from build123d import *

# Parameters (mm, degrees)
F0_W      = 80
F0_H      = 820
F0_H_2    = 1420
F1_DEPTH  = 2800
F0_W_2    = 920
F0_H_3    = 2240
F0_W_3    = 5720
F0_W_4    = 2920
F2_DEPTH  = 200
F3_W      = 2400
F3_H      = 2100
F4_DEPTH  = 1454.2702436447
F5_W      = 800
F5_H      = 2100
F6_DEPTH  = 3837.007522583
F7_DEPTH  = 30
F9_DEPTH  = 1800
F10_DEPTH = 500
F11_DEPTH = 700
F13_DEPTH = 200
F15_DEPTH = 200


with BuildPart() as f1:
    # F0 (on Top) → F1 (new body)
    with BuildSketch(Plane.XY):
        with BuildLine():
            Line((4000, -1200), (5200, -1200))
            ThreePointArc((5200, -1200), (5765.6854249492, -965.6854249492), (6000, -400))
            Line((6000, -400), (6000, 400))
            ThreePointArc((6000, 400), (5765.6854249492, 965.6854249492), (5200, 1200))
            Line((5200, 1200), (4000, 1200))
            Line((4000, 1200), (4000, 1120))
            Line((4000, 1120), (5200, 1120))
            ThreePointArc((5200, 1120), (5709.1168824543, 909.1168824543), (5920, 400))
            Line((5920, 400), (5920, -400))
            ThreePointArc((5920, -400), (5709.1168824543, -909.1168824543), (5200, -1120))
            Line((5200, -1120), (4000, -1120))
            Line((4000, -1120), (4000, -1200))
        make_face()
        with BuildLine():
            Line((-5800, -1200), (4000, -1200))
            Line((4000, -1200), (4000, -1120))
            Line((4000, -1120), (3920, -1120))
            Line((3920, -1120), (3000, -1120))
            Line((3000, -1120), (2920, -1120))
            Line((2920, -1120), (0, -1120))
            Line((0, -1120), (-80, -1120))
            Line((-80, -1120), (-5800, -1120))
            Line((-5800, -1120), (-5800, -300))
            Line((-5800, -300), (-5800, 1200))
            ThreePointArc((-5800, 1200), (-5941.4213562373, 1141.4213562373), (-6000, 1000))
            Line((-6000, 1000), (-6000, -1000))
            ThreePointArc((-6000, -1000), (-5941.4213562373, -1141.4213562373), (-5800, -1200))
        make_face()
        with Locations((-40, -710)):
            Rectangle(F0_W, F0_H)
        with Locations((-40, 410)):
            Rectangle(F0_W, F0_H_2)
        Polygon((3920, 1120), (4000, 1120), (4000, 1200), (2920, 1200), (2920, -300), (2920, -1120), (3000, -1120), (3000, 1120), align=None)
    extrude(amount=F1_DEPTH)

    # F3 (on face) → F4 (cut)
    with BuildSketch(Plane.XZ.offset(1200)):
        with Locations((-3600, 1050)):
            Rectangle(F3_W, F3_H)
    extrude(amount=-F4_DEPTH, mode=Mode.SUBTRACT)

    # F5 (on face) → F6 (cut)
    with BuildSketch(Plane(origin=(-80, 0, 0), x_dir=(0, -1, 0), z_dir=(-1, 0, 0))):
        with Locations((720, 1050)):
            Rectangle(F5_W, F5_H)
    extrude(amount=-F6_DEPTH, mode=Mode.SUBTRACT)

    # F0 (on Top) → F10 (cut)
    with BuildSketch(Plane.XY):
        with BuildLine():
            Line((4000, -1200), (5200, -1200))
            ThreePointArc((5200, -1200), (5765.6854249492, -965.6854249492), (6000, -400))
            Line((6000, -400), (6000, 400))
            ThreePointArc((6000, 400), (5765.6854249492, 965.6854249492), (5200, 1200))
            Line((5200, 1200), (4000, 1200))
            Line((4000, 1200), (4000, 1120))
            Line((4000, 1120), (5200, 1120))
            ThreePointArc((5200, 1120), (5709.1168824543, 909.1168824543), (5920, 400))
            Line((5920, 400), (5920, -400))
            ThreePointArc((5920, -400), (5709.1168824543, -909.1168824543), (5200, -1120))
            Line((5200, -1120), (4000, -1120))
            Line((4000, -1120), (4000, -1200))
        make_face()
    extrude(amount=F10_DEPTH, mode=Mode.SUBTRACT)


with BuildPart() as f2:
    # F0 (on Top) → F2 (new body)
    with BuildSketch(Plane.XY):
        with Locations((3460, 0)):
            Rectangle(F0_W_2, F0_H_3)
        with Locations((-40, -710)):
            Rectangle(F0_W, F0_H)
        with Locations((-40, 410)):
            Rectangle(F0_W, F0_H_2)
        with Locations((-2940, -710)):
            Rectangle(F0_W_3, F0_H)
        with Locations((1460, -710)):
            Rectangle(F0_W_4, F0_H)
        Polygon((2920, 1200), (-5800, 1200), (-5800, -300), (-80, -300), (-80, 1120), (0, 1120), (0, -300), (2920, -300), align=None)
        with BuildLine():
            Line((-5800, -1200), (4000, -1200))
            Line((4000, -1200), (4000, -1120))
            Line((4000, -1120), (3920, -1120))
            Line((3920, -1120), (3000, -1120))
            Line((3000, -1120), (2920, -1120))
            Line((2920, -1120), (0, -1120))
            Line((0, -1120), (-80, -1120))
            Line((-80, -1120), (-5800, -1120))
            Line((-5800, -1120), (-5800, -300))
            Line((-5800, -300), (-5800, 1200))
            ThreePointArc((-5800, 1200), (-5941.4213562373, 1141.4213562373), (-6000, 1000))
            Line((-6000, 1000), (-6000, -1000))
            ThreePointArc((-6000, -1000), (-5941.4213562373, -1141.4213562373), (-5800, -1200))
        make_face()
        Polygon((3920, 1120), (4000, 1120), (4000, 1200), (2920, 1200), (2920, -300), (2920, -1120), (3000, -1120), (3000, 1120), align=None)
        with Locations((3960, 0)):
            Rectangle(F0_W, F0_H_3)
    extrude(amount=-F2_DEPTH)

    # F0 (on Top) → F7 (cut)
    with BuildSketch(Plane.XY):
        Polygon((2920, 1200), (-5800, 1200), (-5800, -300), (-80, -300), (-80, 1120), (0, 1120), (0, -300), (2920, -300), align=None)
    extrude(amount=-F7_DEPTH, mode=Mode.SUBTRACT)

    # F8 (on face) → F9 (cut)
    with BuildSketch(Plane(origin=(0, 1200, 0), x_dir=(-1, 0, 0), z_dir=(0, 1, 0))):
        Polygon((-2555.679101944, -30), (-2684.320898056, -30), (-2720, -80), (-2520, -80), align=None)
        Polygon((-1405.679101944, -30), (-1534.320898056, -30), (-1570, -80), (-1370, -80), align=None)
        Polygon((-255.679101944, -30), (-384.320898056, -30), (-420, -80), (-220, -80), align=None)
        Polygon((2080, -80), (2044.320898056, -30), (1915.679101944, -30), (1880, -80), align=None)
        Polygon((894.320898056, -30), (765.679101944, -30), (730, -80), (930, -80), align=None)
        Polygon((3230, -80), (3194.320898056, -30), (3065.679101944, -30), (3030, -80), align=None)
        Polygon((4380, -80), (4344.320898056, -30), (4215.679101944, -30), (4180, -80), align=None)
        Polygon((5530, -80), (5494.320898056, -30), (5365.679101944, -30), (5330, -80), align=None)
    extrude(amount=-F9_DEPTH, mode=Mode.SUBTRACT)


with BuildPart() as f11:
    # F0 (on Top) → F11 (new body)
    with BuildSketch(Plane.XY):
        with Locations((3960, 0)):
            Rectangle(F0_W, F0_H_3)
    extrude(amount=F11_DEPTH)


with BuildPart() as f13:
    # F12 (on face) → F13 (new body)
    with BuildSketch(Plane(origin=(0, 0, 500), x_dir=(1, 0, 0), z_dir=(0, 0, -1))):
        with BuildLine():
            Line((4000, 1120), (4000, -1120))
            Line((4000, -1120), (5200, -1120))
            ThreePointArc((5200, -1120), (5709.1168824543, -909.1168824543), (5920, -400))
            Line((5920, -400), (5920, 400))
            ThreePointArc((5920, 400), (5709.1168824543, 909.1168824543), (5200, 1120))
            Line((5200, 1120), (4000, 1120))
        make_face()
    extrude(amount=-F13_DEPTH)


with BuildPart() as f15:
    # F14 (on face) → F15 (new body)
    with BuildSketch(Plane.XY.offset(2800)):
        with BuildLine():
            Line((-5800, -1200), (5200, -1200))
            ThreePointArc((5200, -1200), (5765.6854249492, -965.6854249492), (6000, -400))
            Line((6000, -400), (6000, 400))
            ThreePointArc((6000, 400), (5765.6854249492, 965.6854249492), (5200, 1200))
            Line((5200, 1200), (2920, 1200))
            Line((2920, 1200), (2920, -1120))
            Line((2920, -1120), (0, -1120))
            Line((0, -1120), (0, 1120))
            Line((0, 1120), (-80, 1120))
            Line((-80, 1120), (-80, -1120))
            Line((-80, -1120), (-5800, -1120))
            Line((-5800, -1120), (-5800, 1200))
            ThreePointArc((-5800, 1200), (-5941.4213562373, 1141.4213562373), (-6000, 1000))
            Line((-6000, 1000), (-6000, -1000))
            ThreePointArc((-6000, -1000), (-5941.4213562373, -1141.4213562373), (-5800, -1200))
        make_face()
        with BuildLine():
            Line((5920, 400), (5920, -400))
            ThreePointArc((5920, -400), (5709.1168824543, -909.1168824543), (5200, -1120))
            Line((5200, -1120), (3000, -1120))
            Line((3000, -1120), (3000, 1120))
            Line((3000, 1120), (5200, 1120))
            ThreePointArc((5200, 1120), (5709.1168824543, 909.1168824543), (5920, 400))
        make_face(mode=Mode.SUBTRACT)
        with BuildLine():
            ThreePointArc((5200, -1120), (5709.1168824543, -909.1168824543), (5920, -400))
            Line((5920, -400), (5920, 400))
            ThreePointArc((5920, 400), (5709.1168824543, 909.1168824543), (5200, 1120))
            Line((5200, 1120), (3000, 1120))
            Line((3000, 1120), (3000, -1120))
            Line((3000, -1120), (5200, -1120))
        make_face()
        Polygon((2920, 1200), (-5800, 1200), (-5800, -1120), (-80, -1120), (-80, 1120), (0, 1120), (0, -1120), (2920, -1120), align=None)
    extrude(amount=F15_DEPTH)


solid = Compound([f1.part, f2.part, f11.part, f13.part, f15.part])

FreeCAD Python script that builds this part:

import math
import FreeCAD as App
import Part
import Sketcher
Q = App.Units.Quantity

doc = App.newDocument("Part")
body = doc.addObject("PartDesign::Body", "Body")

# Sketch on XY plane
sketch1 = body.newObject("Sketcher::SketchObject", "Sketch")
sketch1.AttachmentSupport = (doc.getObject("XY_Plane"), [""])
sketch1.MapMode = "FlatFace"
sketch1.addGeometry([
    Part.ArcOfCircle(Part.Circle(App.Vector(5200, -400, 0), App.Vector(0, 0, 1), 800), math.radians(-90), math.radians(0)),  # 0
    Part.LineSegment(App.Vector(6000, -400, 0), App.Vector(6000, 400, 0)),  # 1
    Part.ArcOfCircle(Part.Circle(App.Vector(5200, 400, 0), App.Vector(0, 0, 1), 800), math.radians(0), math.radians(90)),  # 2
    Part.LineSegment(App.Vector(5200, 1200, 0), App.Vector(2920, 1200, 0)),  # 3
    Part.LineSegment(App.Vector(2920, 1200, 0), App.Vector(2920, -1120, 0)),  # 4
    Part.LineSegment(App.Vector(2920, -1120, 0), App.Vector(0, -1120, 0)),  # 5
    Part.LineSegment(App.Vector(0, -1120, 0), App.Vector(0, 1120, 0)),  # 6
    Part.LineSegment(App.Vector(0, 1120, 0), App.Vector(-80, 1120, 0)),  # 7
    Part.LineSegment(App.Vector(-80, 1120, 0), App.Vector(-80, -1120, 0)),  # 8
    Part.LineSegment(App.Vector(-80, -1120, 0), App.Vector(-5800, -1120, 0)),  # 9
    Part.LineSegment(App.Vector(-5800, -1120, 0), App.Vector(-5800, 1200, 0)),  # 10
    Part.ArcOfCircle(Part.Circle(App.Vector(-5800, 1000, 0), App.Vector(0, 0, 1), 200), math.radians(90), math.radians(180)),  # 11
    Part.LineSegment(App.Vector(-6000, 1000, 0), App.Vector(-6000, -1000, 0)),  # 12
    Part.ArcOfCircle(Part.Circle(App.Vector(-5800, -1000, 0), App.Vector(0, 0, 1), 200), math.radians(180), math.radians(270)),  # 13
    Part.LineSegment(App.Vector(-5800, -1200, 0), App.Vector(5200, -1200, 0)),  # 14
    Part.LineSegment(App.Vector(5200, -1120, 0), App.Vector(3000, -1120, 0)),  # 15
    Part.LineSegment(App.Vector(3000, -1120, 0), App.Vector(3000, 1120, 0)),  # 16
    Part.LineSegment(App.Vector(3000, 1120, 0), App.Vector(5200, 1120, 0)),  # 17
    Part.ArcOfCircle(Part.Circle(App.Vector(5200, 400, 0), App.Vector(0, 0, 1), 720), math.radians(0), math.radians(90)),  # 18
    Part.LineSegment(App.Vector(5920, 400, 0), App.Vector(5920, -400, 0)),  # 19
    Part.ArcOfCircle(Part.Circle(App.Vector(5200, -400, 0), App.Vector(0, 0, 1), 720), math.radians(-90), math.radians(0)),  # 20
], False)
sketch1.addConstraint([
    Sketcher.Constraint("Tangent", 0, 2, 1, 1),
    Sketcher.Constraint("Tangent", 1, 2, 2, 1),
    Sketcher.Constraint("Coincident", 2, 2, 3, 1),
    Sketcher.Constraint("Coincident", 3, 2, 4, 1),
    Sketcher.Constraint("Coincident", 4, 2, 5, 1),
    Sketcher.Constraint("Coincident", 5, 2, 6, 1),
    Sketcher.Constraint("Coincident", 6, 2, 7, 1),
    Sketcher.Constraint("Coincident", 7, 2, 8, 1),
    Sketcher.Constraint("Coincident", 8, 2, 9, 1),
    Sketcher.Constraint("Coincident", 9, 2, 10, 1),
    Sketcher.Constraint("Coincident", 10, 2, 11, 1),
    Sketcher.Constraint("Tangent", 11, 2, 12, 1),
    Sketcher.Constraint("Tangent", 12, 2, 13, 1),
    Sketcher.Constraint("Tangent", 13, 2, 14, 1),
    Sketcher.Constraint("Coincident", 14, 2, 0, 1),
    Sketcher.Constraint("Coincident", 15, 2, 16, 1),
    Sketcher.Constraint("Coincident", 16, 2, 17, 1),
    Sketcher.Constraint("Tangent", 17, 2, 18, 2),
    Sketcher.Constraint("Tangent", 18, 1, 19, 1),
    Sketcher.Constraint("Tangent", 19, 2, 20, 2),
    Sketcher.Constraint("Coincident", 20, 1, 15, 1),
    Sketcher.Constraint("Vertical", 1),
    Sketcher.Constraint("Horizontal", 3),
    Sketcher.Constraint("Vertical", 4),
    Sketcher.Constraint("Horizontal", 5),
    Sketcher.Constraint("Vertical", 6),
    Sketcher.Constraint("Horizontal", 7),
    Sketcher.Constraint("Vertical", 8),
    Sketcher.Constraint("Horizontal", 9),
    Sketcher.Constraint("Vertical", 10),
    Sketcher.Constraint("Vertical", 12),
    Sketcher.Constraint("Horizontal", 14),
    Sketcher.Constraint("Horizontal", 15),
    Sketcher.Constraint("Vertical", 16),
    Sketcher.Constraint("Horizontal", 17),
    Sketcher.Constraint("Vertical", 19),
    Sketcher.Constraint("Coincident", 18, 3, 2, 3),
    Sketcher.Constraint("Coincident", 20, 3, 0, 3),
    Sketcher.Constraint("Equal", 0, 2),
    Sketcher.Constraint("Equal", 11, 13),
    Sketcher.Constraint("Symmetric", 5, 2, 6, 2, -1, 1),
    Sketcher.Constraint("Symmetric", 10, 2, 13, 2, -1),
    Sketcher.Constraint("Horizontal", 5, 2, 8, 2),
    Sketcher.Constraint("Horizontal", 3, 2, 10, 2),
    Sketcher.Constraint("Horizontal", 9, 2, 15, 2),
    Sketcher.Constraint("Vertical", 14, 2, 17, 2),
    Sketcher.Constraint("Equal", 15, 17),
    Sketcher.Constraint("Radius", 0, Q("800 mm")),
    Sketcher.Constraint("Radius", 11, Q("200 mm")),
    Sketcher.Constraint("Radius", 18, Q("720 mm")),
    Sketcher.Constraint("DistanceX", 3, 2, 3, 1, Q("2280 mm")),
    Sketcher.Constraint("DistanceX", 5, 2, 5, 1, Q("2920 mm")),
    Sketcher.Constraint("DistanceX", 7, 2, 7, 1, Q("80 mm")),
    Sketcher.Constraint("DistanceX", 9, 2, 9, 1, Q("5720 mm")),
    Sketcher.Constraint("DistanceX", 14, 1, 14, 2, Q("11000 mm")),
    Sketcher.Constraint("DistanceX", 15, 2, 15, 1, Q("2200 mm")),
    Sketcher.Constraint("DistanceY", 1, 1, 1, 2, Q("800 mm")),
])
pad1 = body.newObject("PartDesign::Pad", "Pad")
pad1.Profile = sketch1
pad1.Length = 2800

# Sketch on XZ plane
sketch2 = body.newObject("Sketcher::SketchObject", "Sketch001")
sketch2.AttachmentSupport = (doc.getObject("XZ_Plane"), [""])
sketch2.MapMode = "FlatFace"
sketch2.AttachmentOffset = App.Placement(App.Vector(0, 0, 1200), App.Rotation())
sketch2.addGeometry([
    Part.LineSegment(App.Vector(-4800, 2100, 0), App.Vector(-4800, 0, 0)),
    Part.LineSegment(App.Vector(-4800, 0, 0), App.Vector(-2400, 0, 0)),
    Part.LineSegment(App.Vector(-2400, 0, 0), App.Vector(-2400, 2100, 0)),
    Part.LineSegment(App.Vector(-2400, 2100, 0), App.Vector(-4800, 2100, 0)),
], False)
sketch2.addConstraint([
    Sketcher.Constraint("Coincident", 0, 2, 1, 1),
    Sketcher.Constraint("Coincident", 1, 2, 2, 1),
    Sketcher.Constraint("Coincident", 2, 2, 3, 1),
    Sketcher.Constraint("Coincident", 3, 2, 0, 1),
    Sketcher.Constraint("Vertical", 0),
    Sketcher.Constraint("Horizontal", 1),
    Sketcher.Constraint("Vertical", 2),
    Sketcher.Constraint("Horizontal", 3),
    Sketcher.Constraint("PointOnObject", 0, 2, -1),
    Sketcher.Constraint("DistanceX", 1, 1, 1, 2, Q("2400 mm")),
    Sketcher.Constraint("DistanceY", 0, 2, 0, 1, Q("2100 mm")),
    Sketcher.Constraint("DistanceX", 0, 2, -1, 1, Q("4800 mm")),
])
pocket1 = body.newObject("PartDesign::Pocket", "Pocket")
pocket1.Profile = sketch2
pocket1.Length = 1454.270244

# Sketch on YZ plane
sketch3 = body.newObject("Sketcher::SketchObject", "Sketch002")
sketch3.AttachmentSupport = (doc.getObject("YZ_Plane"), [""])
sketch3.MapMode = "FlatFace"
sketch3.AttachmentOffset = App.Placement(App.Vector(0, 0, -80), App.Rotation())
sketch3.addGeometry([
    Part.LineSegment(App.Vector(-320, 2100, 0), App.Vector(-320, 0, 0)),
    Part.LineSegment(App.Vector(-320, 0, 0), App.Vector(-1120, 0, 0)),
    Part.LineSegment(App.Vector(-1120, 0, 0), App.Vector(-1120, 2100, 0)),
    Part.LineSegment(App.Vector(-1120, 2100, 0), App.Vector(-320, 2100, 0)),
], False)
sketch3.addConstraint([
    Sketcher.Constraint("Coincident", 0, 2, 1, 1),
    Sketcher.Constraint("Coincident", 1, 2, 2, 1),
    Sketcher.Constraint("Coincident", 2, 2, 3, 1),
    Sketcher.Constraint("Coincident", 3, 2, 0, 1),
    Sketcher.Constraint("Vertical", 0),
    Sketcher.Constraint("Horizontal", 1),
    Sketcher.Constraint("Vertical", 2),
    Sketcher.Constraint("Horizontal", 3),
    Sketcher.Constraint("PointOnObject", 0, 2, -1),
    Sketcher.Constraint("DistanceX", 1, 2, 1, 1, Q("800 mm")),
    Sketcher.Constraint("DistanceY", 0, 2, 0, 1, Q("2100 mm")),
    Sketcher.Constraint("DistanceX", 0, 2, -1, 1, Q("320 mm")),
])
pocket2 = body.newObject("PartDesign::Pocket", "Pocket001")
pocket2.Profile = sketch3
pocket2.Length = 3837.007523
pocket2.Reversed = True

# Sketch on XY plane
sketch4 = body.newObject("Sketcher::SketchObject", "Sketch003")
sketch4.AttachmentSupport = (doc.getObject("XY_Plane"), [""])
sketch4.MapMode = "FlatFace"
sketch4.addGeometry([
    Part.LineSegment(App.Vector(4000, -1200, 0), App.Vector(5200, -1200, 0)),  # 0
    Part.ArcOfCircle(Part.Circle(App.Vector(5200, -400, 0), App.Vector(0, 0, 1), 800), math.radians(-90), math.radians(0)),  # 1
    Part.LineSegment(App.Vector(6000, -400, 0), App.Vector(6000, 400, 0)),  # 2
    Part.ArcOfCircle(Part.Circle(App.Vector(5200, 400, 0), App.Vector(0, 0, 1), 800), math.radians(0), math.radians(90)),  # 3
    Part.LineSegment(App.Vector(5200, 1200, 0), App.Vector(4000, 1200, 0)),  # 4
    Part.LineSegment(App.Vector(4000, 1200, 0), App.Vector(4000, 1120, 0)),  # 5
    Part.LineSegment(App.Vector(4000, 1120, 0), App.Vector(5200, 1120, 0)),  # 6
    Part.ArcOfCircle(Part.Circle(App.Vector(5200, 400, 0), App.Vector(0, 0, 1), 720), math.radians(0), math.radians(90)),  # 7
    Part.LineSegment(App.Vector(5920, 400, 0), App.Vector(5920, -400, 0)),  # 8
    Part.ArcOfCircle(Part.Circle(App.Vector(5200, -400, 0), App.Vector(0, 0, 1), 720), math.radians(-90), math.radians(0)),  # 9
    Part.LineSegment(App.Vector(5200, -1120, 0), App.Vector(4000, -1120, 0)),  # 10
    Part.LineSegment(App.Vector(4000, -1120, 0), App.Vector(4000, -1200, 0)),  # 11
], False)
sketch4.addConstraint([
    Sketcher.Constraint("Tangent", 0, 2, 1, 1),
    Sketcher.Constraint("Tangent", 1, 2, 2, 1),
    Sketcher.Constraint("Tangent", 2, 2, 3, 1),
    Sketcher.Constraint("Coincident", 3, 2, 4, 1),
    Sketcher.Constraint("Coincident", 4, 2, 5, 1),
    Sketcher.Constraint("Coincident", 5, 2, 6, 1),
    Sketcher.Constraint("Tangent", 6, 2, 7, 2),
    Sketcher.Constraint("Tangent", 7, 1, 8, 1),
    Sketcher.Constraint("Tangent", 8, 2, 9, 2),
    Sketcher.Constraint("Tangent", 9, 1, 10, 1),
    Sketcher.Constraint("Coincident", 10, 2, 11, 1),
    Sketcher.Constraint("Coincident", 11, 2, 0, 1),
    Sketcher.Constraint("Horizontal", 0),
    Sketcher.Constraint("Vertical", 2),
    Sketcher.Constraint("Horizontal", 4),
    Sketcher.Constraint("Vertical", 5),
    Sketcher.Constraint("Horizontal", 6),
    Sketcher.Constraint("Vertical", 8),
    Sketcher.Constraint("Horizontal", 10),
    Sketcher.Constraint("Vertical", 11),
    Sketcher.Constraint("Coincident", 7, 3, 3, 3),
    Sketcher.Constraint("Coincident", 9, 3, 1, 3),
    Sketcher.Constraint("Equal", 1, 3),
    Sketcher.Constraint("Symmetric", 5, 2, 10, 2, -1),
    Sketcher.Constraint("Equal", 0, 4),
    Sketcher.Constraint("Radius", 1, Q("800 mm")),
    Sketcher.Constraint("Radius", 7, Q("720 mm")),
    Sketcher.Constraint("DistanceX", 0, 1, 0, 2, Q("1200 mm")),
    Sketcher.Constraint("DistanceY", 2, 1, 2, 2, Q("800 mm")),
    Sketcher.Constraint("DistanceX", -1, 1, 1, 3, Q("5200 mm")),
])
pocket3 = body.newObject("PartDesign::Pocket", "Pocket002")
pocket3.Profile = sketch4
pocket3.Length = 500
pocket3.Reversed = True
body2 = doc.addObject("PartDesign::Body", "Body001")

# Sketch on XY plane
sketch5 = body2.newObject("Sketcher::SketchObject", "Sketch004")
sketch5.AttachmentSupport = (doc.getObject("XY_Plane001"), [""])
sketch5.MapMode = "FlatFace"
sketch5.addGeometry([
    Part.ArcOfCircle(Part.Circle(App.Vector(-5800, 1000, 0), App.Vector(0, 0, 1), 200), math.radians(90), math.radians(180)),  # 0
    Part.LineSegment(App.Vector(-6000, 1000, 0), App.Vector(-6000, -1000, 0)),  # 1
    Part.ArcOfCircle(Part.Circle(App.Vector(-5800, -1000, 0), App.Vector(0, 0, 1), 200), math.radians(180), math.radians(270)),  # 2
    Part.LineSegment(App.Vector(-5800, -1200, 0), App.Vector(4000, -1200, 0)),  # 3
    Part.LineSegment(App.Vector(4000, -1200, 0), App.Vector(4000, 1200, 0)),  # 4
    Part.LineSegment(App.Vector(4000, 1200, 0), App.Vector(-5800, 1200, 0)),  # 5
], False)
sketch5.addConstraint([
    Sketcher.Constraint("Tangent", 0, 2, 1, 1),
    Sketcher.Constraint("Tangent", 1, 2, 2, 1),
    Sketcher.Constraint("Tangent", 2, 2, 3, 1),
    Sketcher.Constraint("Coincident", 3, 2, 4, 1),
    Sketcher.Constraint("Coincident", 4, 2, 5, 1),
    Sketcher.Constraint("Tangent", 5, 2, 0, 1),
    Sketcher.Constraint("Vertical", 1),
    Sketcher.Constraint("Horizontal", 3),
    Sketcher.Constraint("Vertical", 4),
    Sketcher.Constraint("Horizontal", 5),
    Sketcher.Constraint("Equal", 0, 2),
    Sketcher.Constraint("Radius", 0, Q("200 mm")),
    Sketcher.Constraint("DistanceX", 3, 1, 3, 2, Q("9800 mm")),
    Sketcher.Constraint("DistanceY", 1, 2, 1, 1, Q("2000 mm")),
    Sketcher.Constraint("DistanceX", 0, 3, -1, 1, Q("5800 mm")),
    Sketcher.Constraint("DistanceY", -1, 1, 0, 3, Q("1000 mm")),
])
pad2 = body2.newObject("PartDesign::Pad", "Pad001")
pad2.Profile = sketch5
pad2.Length = 200
pad2.Reversed = True

# Sketch on XY plane
sketch6 = body2.newObject("Sketcher::SketchObject", "Sketch005")
sketch6.AttachmentSupport = (doc.getObject("XY_Plane001"), [""])
sketch6.MapMode = "FlatFace"
sketch6.addGeometry([
    Part.LineSegment(App.Vector(2920, 1200, 0), App.Vector(-5800, 1200, 0)),  # 0
    Part.LineSegment(App.Vector(-5800, 1200, 0), App.Vector(-5800, -300, 0)),  # 1
    Part.LineSegment(App.Vector(-5800, -300, 0), App.Vector(-80, -300, 0)),  # 2
    Part.LineSegment(App.Vector(-80, -300, 0), App.Vector(-80, 1120, 0)),  # 3
    Part.LineSegment(App.Vector(-80, 1120, 0), App.Vector(0, 1120, 0)),  # 4
    Part.LineSegment(App.Vector(0, 1120, 0), App.Vector(0, -300, 0)),  # 5
    Part.LineSegment(App.Vector(0, -300, 0), App.Vector(2920, -300, 0)),  # 6
    Part.LineSegment(App.Vector(2920, -300, 0), App.Vector(2920, 1200, 0)),  # 7
], False)
sketch6.addConstraint([
    Sketcher.Constraint("Coincident", 0, 2, 1, 1),
    Sketcher.Constraint("Coincident", 1, 2, 2, 1),
    Sketcher.Constraint("Coincident", 2, 2, 3, 1),
    Sketcher.Constraint("Coincident", 3, 2, 4, 1),
    Sketcher.Constraint("Coincident", 4, 2, 5, 1),
    Sketcher.Constraint("Coincident", 5, 2, 6, 1),
    Sketcher.Constraint("Coincident", 6, 2, 7, 1),
    Sketcher.Constraint("Coincident", 7, 2, 0, 1),
    Sketcher.Constraint("Horizontal", 0),
    Sketcher.Constraint("Vertical", 1),
    Sketcher.Constraint("Horizontal", 2),
    Sketcher.Constraint("Vertical", 3),
    Sketcher.Constraint("Horizontal", 4),
    Sketcher.Constraint("Vertical", 5),
    Sketcher.Constraint("Horizontal", 6),
    Sketcher.Constraint("Vertical", 7),
    Sketcher.Constraint("PointOnObject", 4, 2, -2),
    Sketcher.Constraint("Horizontal", 2, 2, 5, 2),
    Sketcher.Constraint("DistanceX", 0, 2, 0, 1, Q("8720 mm")),
    Sketcher.Constraint("DistanceX", 2, 1, 2, 2, Q("5720 mm")),
    Sketcher.Constraint("DistanceX", 4, 1, 4, 2, Q("80 mm")),
    Sketcher.Constraint("DistanceY", 1, 2, 1, 1, Q("1500 mm")),
    Sketcher.Constraint("DistanceY", 3, 1, 3, 2, Q("1420 mm")),
    Sketcher.Constraint("DistanceY", -1, 1, 0, 2, Q("1200 mm")),
])
pocket4 = body2.newObject("PartDesign::Pocket", "Pocket003")
pocket4.Profile = sketch6
pocket4.Length = 30

# Sketch on XZ plane
sketch7 = body2.newObject("Sketcher::SketchObject", "Sketch006")
sketch7.AttachmentSupport = (doc.getObject("XZ_Plane001"), [""])
sketch7.MapMode = "FlatFace"
sketch7.AttachmentOffset = App.Placement(App.Vector(0, 0, -1200), App.Rotation())
sketch7.addGeometry([
    Part.LineSegment(App.Vector(2556, -30, 0), App.Vector(2684, -30, 0)),  # 0
    Part.LineSegment(App.Vector(2684, -30, 0), App.Vector(2720, -80, 0)),  # 1
    Part.LineSegment(App.Vector(2720, -80, 0), App.Vector(2520, -80, 0)),  # 2
    Part.LineSegment(App.Vector(2520, -80, 0), App.Vector(2556, -30, 0)),  # 3
    Part.LineSegment(App.Vector(1406, -30, 0), App.Vector(1534, -30, 0)),  # 4
    Part.LineSegment(App.Vector(1534, -30, 0), App.Vector(1570, -80, 0)),  # 5
    Part.LineSegment(App.Vector(1570, -80, 0), App.Vector(1370, -80, 0)),  # 6
    Part.LineSegment(App.Vector(1370, -80, 0), App.Vector(1406, -30, 0)),  # 7
    Part.LineSegment(App.Vector(256, -30, 0), App.Vector(384, -30, 0)),  # 8
    Part.LineSegment(App.Vector(384, -30, 0), App.Vector(420, -80, 0)),  # 9
    Part.LineSegment(App.Vector(420, -80, 0), App.Vector(220, -80, 0)),  # 10
    Part.LineSegment(App.Vector(220, -80, 0), App.Vector(256, -30, 0)),  # 11
    Part.LineSegment(App.Vector(-2080, -80, 0), App.Vector(-2044, -30, 0)),  # 12
    Part.LineSegment(App.Vector(-2044, -30, 0), App.Vector(-1916, -30, 0)),  # 13
    Part.LineSegment(App.Vector(-1916, -30, 0), App.Vector(-1880, -80, 0)),  # 14
    Part.LineSegment(App.Vector(-1880, -80, 0), App.Vector(-2080, -80, 0)),  # 15
    Part.LineSegment(App.Vector(-894, -30, 0), App.Vector(-766, -30, 0)),  # 16
    Part.LineSegment(App.Vector(-766, -30, 0), App.Vector(-730, -80, 0)),  # 17
    Part.LineSegment(App.Vector(-730, -80, 0), App.Vector(-930, -80, 0)),  # 18
    Part.LineSegment(App.Vector(-930, -80, 0), App.Vector(-894, -30, 0)),  # 19
    Part.LineSegment(App.Vector(-3230, -80, 0), App.Vector(-3194, -30, 0)),  # 20
    Part.LineSegment(App.Vector(-3194, -30, 0), App.Vector(-3066, -30, 0)),  # 21
    Part.LineSegment(App.Vector(-3066, -30, 0), App.Vector(-3030, -80, 0)),  # 22
    Part.LineSegment(App.Vector(-3030, -80, 0), App.Vector(-3230, -80, 0)),  # 23
    Part.LineSegment(App.Vector(-4380, -80, 0), App.Vector(-4344, -30, 0)),  # 24
    Part.LineSegment(App.Vector(-4344, -30, 0), App.Vector(-4216, -30, 0)),  # 25
    Part.LineSegment(App.Vector(-4216, -30, 0), App.Vector(-4180, -80, 0)),  # 26
    Part.LineSegment(App.Vector(-4180, -80, 0), App.Vector(-4380, -80, 0)),  # 27
    Part.LineSegment(App.Vector(-5530, -80, 0), App.Vector(-5494, -30, 0)),  # 28
    Part.LineSegment(App.Vector(-5494, -30, 0), App.Vector(-5366, -30, 0)),  # 29
    Part.LineSegment(App.Vector(-5366, -30, 0), App.Vector(-5330, -80, 0)),  # 30
    Part.LineSegment(App.Vector(-5330, -80, 0), App.Vector(-5530, -80, 0)),  # 31
], False)
sketch7.addConstraint([
    Sketcher.Constraint("Coincident", 0, 2, 1, 1),
    Sketcher.Constraint("Coincident", 1, 2, 2, 1),
    Sketcher.Constraint("Coincident", 2, 2, 3, 1),
    Sketcher.Constraint("Coincident", 3, 2, 0, 1),
    Sketcher.Constraint("Coincident", 4, 2, 5, 1),
    Sketcher.Constraint("Coincident", 5, 2, 6, 1),
    Sketcher.Constraint("Coincident", 6, 2, 7, 1),
    Sketcher.Constraint("Coincident", 7, 2, 4, 1),
    Sketcher.Constraint("Coincident", 8, 2, 9, 1),
    Sketcher.Constraint("Coincident", 9, 2, 10, 1),
    Sketcher.Constraint("Coincident", 10, 2, 11, 1),
    Sketcher.Constraint("Coincident", 11, 2, 8, 1),
    Sketcher.Constraint("Coincident", 12, 2, 13, 1),
    Sketcher.Constraint("Coincident", 13, 2, 14, 1),
    Sketcher.Constraint("Coincident", 14, 2, 15, 1),
    Sketcher.Constraint("Coincident", 15, 2, 12, 1),
    Sketcher.Constraint("Coincident", 16, 2, 17, 1),
    Sketcher.Constraint("Coincident", 17, 2, 18, 1),
    Sketcher.Constraint("Coincident", 18, 2, 19, 1),
    Sketcher.Constraint("Coincident", 19, 2, 16, 1),
    Sketcher.Constraint("Coincident", 20, 2, 21, 1),
    Sketcher.Constraint("Coincident", 21, 2, 22, 1),
    Sketcher.Constraint("Coincident", 22, 2, 23, 1),
    Sketcher.Constraint("Coincident", 23, 2, 20, 1),
    Sketcher.Constraint("Coincident", 24, 2, 25, 1),
    Sketcher.Constraint("Coincident", 25, 2, 26, 1),
    Sketcher.Constraint("Coincident", 26, 2, 27, 1),
    Sketcher.Constraint("Coincident", 27, 2, 24, 1),
    Sketcher.Constraint("Coincident", 28, 2, 29, 1),
    Sketcher.Constraint("Coincident", 29, 2, 30, 1),
    Sketcher.Constraint("Coincident", 30, 2, 31, 1),
    Sketcher.Constraint("Coincident", 31, 2, 28, 1),
    Sketcher.Constraint("Horizontal", 0),
    Sketcher.Constraint("Horizontal", 2),
    Sketcher.Constraint("Horizontal", 4),
    Sketcher.Constraint("Horizontal", 6),
    Sketcher.Constraint("Horizontal", 8),
    Sketcher.Constraint("Horizontal", 10),
    Sketcher.Constraint("Horizontal", 13),
    Sketcher.Constraint("Horizontal", 15),
    Sketcher.Constraint("Horizontal", 16),
    Sketcher.Constraint("Horizontal", 18),
    Sketcher.Constraint("Horizontal", 21),
    Sketcher.Constraint("Horizontal", 23),
    Sketcher.Constraint("Horizontal", 25),
    Sketcher.Constraint("Horizontal", 27),
    Sketcher.Constraint("Horizontal", 29),
    Sketcher.Constraint("Horizontal", 31),
    Sketcher.Constraint("Parallel", 1, 5),
    Sketcher.Constraint("Parallel", 3, 7),
    Sketcher.Constraint("Parallel", 5, 9),
    Sketcher.Constraint("Parallel", 7, 11),
    Sketcher.Constraint("Parallel", 11, 12),
    Sketcher.Constraint("Parallel", 9, 14),
    Sketcher.Constraint("Parallel", 14, 17),
    Sketcher.Constraint("Parallel", 12, 19),
    Sketcher.Constraint("Parallel", 19, 20),
    Sketcher.Constraint("Parallel", 17, 22),
    Sketcher.Constraint("Parallel", 20, 24),
    Sketcher.Constraint("Parallel", 22, 26),
    Sketcher.Constraint("Parallel", 24, 28),
    Sketcher.Constraint("Parallel", 26, 30),
    Sketcher.Constraint("Horizontal", 3, 2, 4, 2),
    Sketcher.Constraint("Horizontal", 2, 2, 5, 2),
    Sketcher.Constraint("Horizontal", 7, 2, 8, 2),
    Sketcher.Constraint("Horizontal", 6, 2, 9, 2),
    Sketcher.Constraint("Horizontal", 11, 2, 12, 2),
    Sketcher.Constraint("Horizontal", 10, 2, 14, 2),
    Sketcher.Constraint("Horizontal", 13, 2, 16, 2),
    Sketcher.Constraint("Horizontal", 15, 2, 17, 2),
    Sketcher.Constraint("Horizontal", 19, 2, 20, 2),
    Sketcher.Constraint("Horizontal", 18, 2, 22, 2),
    Sketcher.Constraint("Horizontal", 21, 2, 24, 2),
    Sketcher.Constraint("Horizontal", 23, 2, 26, 2),
    Sketcher.Constraint("Horizontal", 25, 2, 28, 2),
    Sketcher.Constraint("Horizontal", 27, 2, 30, 2),
    Sketcher.Constraint("Equal", 0, 4),
    Sketcher.Constraint("Equal", 4, 8),
    Sketcher.Constraint("Equal", 8, 13),
    Sketcher.Constraint("Equal", 13, 16),
    Sketcher.Constraint("Equal", 16, 21),
    Sketcher.Constraint("Equal", 21, 25),
    Sketcher.Constraint("Equal", 25, 29),
    Sketcher.Constraint("Equal", 1, 3),
    Sketcher.Constraint("DistanceX", 2, 2, 2, 1, Q("200 mm")),
    Sketcher.Constraint("DistanceY", 0, 2, -1, 1, Q("30 mm")),
    Sketcher.Constraint("DistanceX", -1, 1, 1, 2, Q("2720 mm")),
    Sketcher.Constraint("DistanceY", 1, 2, -1, 1, Q("80 mm")),
    Sketcher.Constraint("DistanceX", -1, 1, 5, 2, Q("1570 mm")),
    Sketcher.Constraint("DistanceX", -1, 1, 9, 2, Q("420 mm")),
    Sketcher.Constraint("DistanceX", 14, 2, -1, 1, Q("1880 mm")),
    Sketcher.Constraint("DistanceX", 17, 2, -1, 1, Q("730 mm")),
    Sketcher.Constraint("DistanceX", 22, 2, -1, 1, Q("3030 mm")),
    Sketcher.Constraint("DistanceX", 26, 2, -1, 1, Q("4180 mm")),
    Sketcher.Constraint("DistanceX", 30, 2, -1, 1, Q("5330 mm")),
    Sketcher.Constraint("DistanceX", -1, 1, 0, 2, Q("2684.320898 mm")),
])
pocket5 = body2.newObject("PartDesign::Pocket", "Pocket004")
pocket5.Profile = sketch7
pocket5.Length = 1800
pocket5.Reversed = True
body3 = doc.addObject("PartDesign::Body", "Body002")

# Sketch on XY plane
sketch8 = body3.newObject("Sketcher::SketchObject", "Sketch007")
sketch8.AttachmentSupport = (doc.getObject("XY_Plane002"), [""])
sketch8.MapMode = "FlatFace"
sketch8.addGeometry([
    Part.LineSegment(App.Vector(3920, 1120, 0), App.Vector(3920, -1120, 0)),
    Part.LineSegment(App.Vector(3920, -1120, 0), App.Vector(4000, -1120, 0)),
    Part.LineSegment(App.Vector(4000, -1120, 0), App.Vector(4000, 1120, 0)),
    Part.LineSegment(App.Vector(4000, 1120, 0), App.Vector(3920, 1120, 0)),
], False)
sketch8.addConstraint([
    Sketcher.Constraint("Coincident", 0, 2, 1, 1),
    Sketcher.Constraint("Coincident", 1, 2, 2, 1),
    Sketcher.Constraint("Coincident", 2, 2, 3, 1),
    Sketcher.Constraint("Coincident", 3, 2, 0, 1),
    Sketcher.Constraint("Vertical", 0),
    Sketcher.Constraint("Horizontal", 1),
    Sketcher.Constraint("Vertical", 2),
    Sketcher.Constraint("Horizontal", 3),
    Sketcher.Constraint("DistanceX", 1, 1, 1, 2, Q("80 mm")),
    Sketcher.Constraint("DistanceY", 0, 2, 0, 1, Q("2240 mm")),
    Sketcher.Constraint("DistanceX", -1, 1, 0, 2, Q("3920 mm")),
    Sketcher.Constraint("DistanceY", 0, 2, -1, 1, Q("1120 mm")),
])
pad3 = body3.newObject("PartDesign::Pad", "Pad002")
pad3.Profile = sketch8
pad3.Length = 700
body4 = doc.addObject("PartDesign::Body", "Body003")

# Sketch on XY plane
sketch9 = body4.newObject("Sketcher::SketchObject", "Sketch008")
sketch9.AttachmentSupport = (doc.getObject("XY_Plane003"), [""])
sketch9.MapMode = "FlatFace"
sketch9.AttachmentOffset = App.Placement(App.Vector(0, 0, 500), App.Rotation())
sketch9.addGeometry([
    Part.LineSegment(App.Vector(4000, -1120, 0), App.Vector(4000, 1120, 0)),  # 0
    Part.LineSegment(App.Vector(4000, 1120, 0), App.Vector(5200, 1120, 0)),  # 1
    Part.ArcOfCircle(Part.Circle(App.Vector(5200, 400, 0), App.Vector(0, 0, 1), 720), math.radians(0), math.radians(90)),  # 2
    Part.LineSegment(App.Vector(5920, 400, 0), App.Vector(5920, -400, 0)),  # 3
    Part.ArcOfCircle(Part.Circle(App.Vector(5200, -400, 0), App.Vector(0, 0, 1), 720), math.radians(-90), math.radians(0)),  # 4
    Part.LineSegment(App.Vector(5200, -1120, 0), App.Vector(4000, -1120, 0)),  # 5
], False)
sketch9.addConstraint([
    Sketcher.Constraint("Coincident", 0, 2, 1, 1),
    Sketcher.Constraint("Tangent", 1, 2, 2, 2),
    Sketcher.Constraint("Tangent", 2, 1, 3, 1),
    Sketcher.Constraint("Tangent", 3, 2, 4, 2),
    Sketcher.Constraint("Tangent", 4, 1, 5, 1),
    Sketcher.Constraint("Coincident", 5, 2, 0, 1),
    Sketcher.Constraint("Vertical", 0),
    Sketcher.Constraint("Horizontal", 1),
    Sketcher.Constraint("Vertical", 3),
    Sketcher.Constraint("Horizontal", 5),
    Sketcher.Constraint("Equal", 2, 4),
    Sketcher.Constraint("Radius", 2, Q("720 mm")),
    Sketcher.Constraint("DistanceX", 1, 1, 1, 2, Q("1200 mm")),
    Sketcher.Constraint("DistanceY", 0, 1, 0, 2, Q("2240 mm")),
    Sketcher.Constraint("DistanceX", -1, 1, 2, 3, Q("5200 mm")),
    Sketcher.Constraint("DistanceY", -1, 1, 2, 3, Q("400 mm")),
])
pad4 = body4.newObject("PartDesign::Pad", "Pad003")
pad4.Profile = sketch9
pad4.Length = 200
body5 = doc.addObject("PartDesign::Body", "Body004")

# Sketch on XY plane
sketch10 = body5.newObject("Sketcher::SketchObject", "Sketch009")
sketch10.AttachmentSupport = (doc.getObject("XY_Plane004"), [""])
sketch10.MapMode = "FlatFace"
sketch10.AttachmentOffset = App.Placement(App.Vector(0, 0, 2800), App.Rotation())
sketch10.addGeometry([
    Part.LineSegment(App.Vector(-5800, -1200, 0), App.Vector(5200, -1200, 0)),  # 0
    Part.ArcOfCircle(Part.Circle(App.Vector(5200, -400, 0), App.Vector(0, 0, 1), 800), math.radians(-90), math.radians(0)),  # 1
    Part.LineSegment(App.Vector(6000, -400, 0), App.Vector(6000, 400, 0)),  # 2
    Part.ArcOfCircle(Part.Circle(App.Vector(5200, 400, 0), App.Vector(0, 0, 1), 800), math.radians(0), math.radians(90)),  # 3
    Part.LineSegment(App.Vector(5200, 1200, 0), App.Vector(-5800, 1200, 0)),  # 4
    Part.ArcOfCircle(Part.Circle(App.Vector(-5800, 1000, 0), App.Vector(0, 0, 1), 200), math.radians(90), math.radians(180)),  # 5
    Part.LineSegment(App.Vector(-6000, 1000, 0), App.Vector(-6000, -1000, 0)),  # 6
    Part.ArcOfCircle(Part.Circle(App.Vector(-5800, -1000, 0), App.Vector(0, 0, 1), 200), math.radians(180), math.radians(270)),  # 7
], False)
sketch10.addConstraint([
    Sketcher.Constraint("Coincident", 0, 2, 1, 1),
    Sketcher.Constraint("Tangent", 1, 2, 2, 1),
    Sketcher.Constraint("Tangent", 2, 2, 3, 1),
    Sketcher.Constraint("Coincident", 3, 2, 4, 1),
    Sketcher.Constraint("Tangent", 4, 2, 5, 1),
    Sketcher.Constraint("Tangent", 5, 2, 6, 1),
    Sketcher.Constraint("Tangent", 6, 2, 7, 1),
    Sketcher.Constraint("Tangent", 7, 2, 0, 1),
    Sketcher.Constraint("Horizontal", 0),
    Sketcher.Constraint("Vertical", 2),
    Sketcher.Constraint("Horizontal", 4),
    Sketcher.Constraint("Vertical", 6),
    Sketcher.Constraint("Equal", 1, 3),
    Sketcher.Constraint("Equal", 5, 7),
    Sketcher.Constraint("Vertical", 3, 3, 0, 2),
    Sketcher.Constraint("Equal", 0, 4),
    Sketcher.Constraint("Radius", 1, Q("800 mm")),
    Sketcher.Constraint("Radius", 5, Q("200 mm")),
    Sketcher.Constraint("DistanceX", 0, 1, 0, 2, Q("11000 mm")),
    Sketcher.Constraint("DistanceY", 2, 1, 2, 2, Q("800 mm")),
    Sketcher.Constraint("DistanceX", -1, 1, 1, 3, Q("5200 mm")),
    Sketcher.Constraint("DistanceY", 1, 3, -1, 1, Q("400 mm")),
])
pad5 = body5.newObject("PartDesign::Pad", "Pad004")
pad5.Profile = sketch10
pad5.Length = 200

doc.recompute()
